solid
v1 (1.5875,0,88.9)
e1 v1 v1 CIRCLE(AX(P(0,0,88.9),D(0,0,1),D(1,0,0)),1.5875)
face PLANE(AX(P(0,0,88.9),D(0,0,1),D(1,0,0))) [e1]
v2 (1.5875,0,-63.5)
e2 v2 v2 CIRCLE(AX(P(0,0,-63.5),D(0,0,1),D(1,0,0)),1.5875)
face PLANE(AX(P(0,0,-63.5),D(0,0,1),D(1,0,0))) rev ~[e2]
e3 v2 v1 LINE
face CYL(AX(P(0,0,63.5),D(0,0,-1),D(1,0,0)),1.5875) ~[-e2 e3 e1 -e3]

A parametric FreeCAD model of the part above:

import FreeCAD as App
import Part
import Sketcher
from FreeCAD import Vector
Q = App.Units.Quantity

doc = App.newDocument("Part")
body = doc.addObject("PartDesign::Body", "Body")

# Sketch on XY plane
sketch1 = doc.addObject("Sketcher::SketchObject", "Sketch")
body.addObject(sketch1)
sketch1.AttachmentSupport = (doc.XY_Plane, [""])
sketch1.MapMode = "FlatFace"
sketch1.addGeometry(Part.Circle(Vector(0, 0, 0), Vector(0, 0, 1), 1.6), False)
sketch1.addConstraint(Sketcher.Constraint("Coincident", 0, 3, -1, 1))
sketch1.addConstraint(Sketcher.Constraint("Diameter", 0, Q("0.125 in")))
pad1 = doc.addObject("PartDesign::Pad", "Pad")
body.addObject(pad1)
pad1.Profile = sketch1
pad1.Length = Q("5 in")
pad1.Midplane = True

# Sketch on XY plane
sketch2 = doc.addObject("Sketcher::SketchObject", "Sketch001")
body.addObject(sketch2)
sketch2.AttachmentSupport = (doc.XY_Plane, [""])
sketch2.MapMode = "FlatFace"
sketch2.AttachmentOffset = App.Placement(Vector(0, 0, 2.5 * 25.4), App.Rotation())
sketch2.addGeometry(Part.Circle(Vector(0, 0, 0), Vector(0, 0, 1), 1.6), False)
sketch2.addConstraint(Sketcher.Constraint("Coincident", 0, 3, -1, 1))
sketch2.addConstraint(Sketcher.Constraint("Diameter", 0, Q("0.125 in")))
pad2 = doc.addObject("PartDesign::Pad", "Pad001")
body.addObject(pad2)
pad2.Profile = sketch2
pad2.Length = Q("1 in")

doc.recompute()
